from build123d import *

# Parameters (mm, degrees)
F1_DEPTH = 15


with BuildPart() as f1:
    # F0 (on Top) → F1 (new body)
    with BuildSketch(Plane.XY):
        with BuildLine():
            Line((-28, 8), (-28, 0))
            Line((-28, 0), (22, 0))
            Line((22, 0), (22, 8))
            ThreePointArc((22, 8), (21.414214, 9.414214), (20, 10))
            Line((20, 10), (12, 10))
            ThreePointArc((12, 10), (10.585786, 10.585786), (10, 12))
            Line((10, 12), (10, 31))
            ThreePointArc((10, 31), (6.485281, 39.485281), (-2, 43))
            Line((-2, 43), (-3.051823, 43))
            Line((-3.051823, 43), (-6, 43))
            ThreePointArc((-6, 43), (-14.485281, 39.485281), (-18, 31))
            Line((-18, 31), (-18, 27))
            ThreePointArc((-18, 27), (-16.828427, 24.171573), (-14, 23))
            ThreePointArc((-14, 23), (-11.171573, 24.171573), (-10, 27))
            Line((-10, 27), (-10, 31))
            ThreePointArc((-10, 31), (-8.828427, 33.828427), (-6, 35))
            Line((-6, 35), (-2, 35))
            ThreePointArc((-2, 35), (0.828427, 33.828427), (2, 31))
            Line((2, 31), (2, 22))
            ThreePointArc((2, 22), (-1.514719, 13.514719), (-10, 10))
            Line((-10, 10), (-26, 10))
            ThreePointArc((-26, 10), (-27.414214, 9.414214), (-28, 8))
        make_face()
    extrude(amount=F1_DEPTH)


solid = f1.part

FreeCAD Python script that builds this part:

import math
import FreeCAD as App
import Part
import Sketcher
from FreeCAD import Vector
Q = App.Units.Quantity

doc = App.newDocument("Part")
body = doc.addObject("PartDesign::Body", "Body")

sketch1 = body.newObject("Sketcher::SketchObject", "Sketch")
sketch1.AttachmentSupport = (doc.getObject("XY_Plane"), [""])
sketch1.MapMode = "FlatFace"
sketch1.addGeometry([
    Part.LineSegment(Vector(-28, 8, 0), Vector(-28, 0, 0)),
    Part.LineSegment(Vector(-28, 0, 0), Vector(22, 0, 0)),
    Part.LineSegment(Vector(22, 0, 0), Vector(22, 8, 0)),
    Part.ArcOfCircle(Part.Circle(Vector(20, 8, 0), Vector(0, 0, 1), 2), math.radians(0), math.radians(90)),
    Part.LineSegment(Vector(20, 10, 0), Vector(12, 10, 0)),
    Part.ArcOfCircle(Part.Circle(Vector(12, 12, 0), Vector(0, 0, 1), 2), math.radians(180), math.radians(270)),
    Part.LineSegment(Vector(10, 12, 0), Vector(10, 31, 0)),
    Part.ArcOfCircle(Part.Circle(Vector(-2, 31, 0), Vector(0, 0, 1), 12), math.radians(0), math.radians(90)),
    Part.LineSegment(Vector(-2, 43, 0), Vector(-6, 43, 0)),
    Part.ArcOfCircle(Part.Circle(Vector(-6, 31, 0), Vector(0, 0, 1), 12), math.radians(90), math.radians(180)),
    Part.LineSegment(Vector(-18, 31, 0), Vector(-18, 27, 0)),
    Part.ArcOfCircle(Part.Circle(Vector(-14, 27, 0), Vector(0, 0, 1), 4), math.radians(-180), math.radians(-90)),
    Part.ArcOfCircle(Part.Circle(Vector(-14, 27, 0), Vector(0, 0, 1), 4), math.radians(-90), math.radians(0)),
    Part.LineSegment(Vector(-10, 27, 0), Vector(-10, 31, 0)),
    Part.ArcOfCircle(Part.Circle(Vector(-6, 31, 0), Vector(0, 0, 1), 4), math.radians(90), math.radians(180)),
    Part.LineSegment(Vector(-6, 35, 0), Vector(-2, 35, 0)),
    Part.ArcOfCircle(Part.Circle(Vector(-2, 31, 0), Vector(0, 0, 1), 4), math.radians(0), math.radians(90)),
    Part.LineSegment(Vector(2, 31, 0), Vector(2, 22, 0)),
    Part.ArcOfCircle(Part.Circle(Vector(-10, 22, 0), Vector(0, 0, 1), 12), math.radians(-90), math.radians(0)),
    Part.LineSegment(Vector(-10, 10, 0), Vector(-26, 10, 0)),
    Part.ArcOfCircle(Part.Circle(Vector(-26, 8, 0), Vector(0, 0, 1), 2), math.radians(90), math.radians(180)),
], False)
sketch1.addConstraint([
    Sketcher.Constraint("Coincident", 0, 2, 1, 1),
    Sketcher.Constraint("Coincident", 1, 2, 2, 1),
    Sketcher.Constraint("Tangent", 2, 2, 3, 1),
    Sketcher.Constraint("Tangent", 3, 2, 4, 1),
    Sketcher.Constraint("Tangent", 4, 2, 5, 2),
    Sketcher.Constraint("Tangent", 5, 1, 6, 1),
    Sketcher.Constraint("Tangent", 6, 2, 7, 1),
    Sketcher.Constraint("Tangent", 7, 2, 8, 1),
    Sketcher.Constraint("Tangent", 8, 2, 9, 1),
    Sketcher.Constraint("Tangent", 9, 2, 10, 1),
    Sketcher.Constraint("Tangent", 10, 2, 11, 1),
    Sketcher.Constraint("Tangent", 11, 2, 12, 1),
    Sketcher.Constraint("Tangent", 12, 2, 13, 1),
    Sketcher.Constraint("Tangent", 13, 2, 14, 2),
    Sketcher.Constraint("Tangent", 14, 1, 15, 1),
    Sketcher.Constraint("Tangent", 15, 2, 16, 2),
    Sketcher.Constraint("Tangent", 16, 1, 17, 1),
    Sketcher.Constraint("Tangent", 17, 2, 18, 2),
    Sketcher.Constraint("Tangent", 18, 1, 19, 1),
    Sketcher.Constraint("Tangent", 19, 2, 20, 1),
    Sketcher.Constraint("Tangent", 20, 2, 0, 1),
    Sketcher.Constraint("Vertical", 0),
    Sketcher.Constraint("Horizontal", 1),
    Sketcher.Constraint("Vertical", 2),
    Sketcher.Constraint("Horizontal", 4),
    Sketcher.Constraint("Vertical", 6),
    Sketcher.Constraint("Horizontal", 8),
    Sketcher.Constraint("Vertical", 10),
    Sketcher.Constraint("Vertical", 13),
    Sketcher.Constraint("Horizontal", 15),
    Sketcher.Constraint("Vertical", 17),
    Sketcher.Constraint("Horizontal", 19),
    Sketcher.Constraint("Coincident", 14, 3, 9, 3),
    Sketcher.Constraint("Coincident", 16, 3, 7, 3),
    Sketcher.Constraint("Equal", 3, 5),
    Sketcher.Constraint("Equal", 7, 9),
    Sketcher.Constraint("Equal", 11, 12),
    Sketcher.Constraint("Equal", 12, 14),
    Sketcher.Constraint("Equal", 9, 18),
    Sketcher.Constraint("Equal", 5, 20),
    Sketcher.Constraint("PointOnObject", 0, 2, -1),
    Sketcher.Constraint("Horizontal", 3, 3, 20, 3),
    Sketcher.Constraint("Vertical", 12, 3, 11, 2),
    Sketcher.Constraint("Vertical", 18, 3, 12, 2),
    Sketcher.Constraint("Equal", 4, 0),
    Sketcher.Constraint("Equal", 15, 10),
    Sketcher.Constraint("Radius", 3, Q("1.999999 mm")),
    Sketcher.Constraint("Radius", 7, Q("12.000001 mm")),
    Sketcher.Constraint("DistanceX", 1, 1, 1, 2, Q("50 mm")),
    Sketcher.Constraint("DistanceX", 4, 2, 4, 1, Q("8 mm")),
    Sketcher.Constraint("DistanceY", 6, 1, 6, 2, Q("19 mm")),
    Sketcher.Constraint("DistanceX", -1, 1, 3, 3, Q("20.000001 mm")),
])
pad1 = body.newObject("PartDesign::Pad", "Pad")
pad1.Profile = sketch1
pad1.Length = 15

doc.recompute()
